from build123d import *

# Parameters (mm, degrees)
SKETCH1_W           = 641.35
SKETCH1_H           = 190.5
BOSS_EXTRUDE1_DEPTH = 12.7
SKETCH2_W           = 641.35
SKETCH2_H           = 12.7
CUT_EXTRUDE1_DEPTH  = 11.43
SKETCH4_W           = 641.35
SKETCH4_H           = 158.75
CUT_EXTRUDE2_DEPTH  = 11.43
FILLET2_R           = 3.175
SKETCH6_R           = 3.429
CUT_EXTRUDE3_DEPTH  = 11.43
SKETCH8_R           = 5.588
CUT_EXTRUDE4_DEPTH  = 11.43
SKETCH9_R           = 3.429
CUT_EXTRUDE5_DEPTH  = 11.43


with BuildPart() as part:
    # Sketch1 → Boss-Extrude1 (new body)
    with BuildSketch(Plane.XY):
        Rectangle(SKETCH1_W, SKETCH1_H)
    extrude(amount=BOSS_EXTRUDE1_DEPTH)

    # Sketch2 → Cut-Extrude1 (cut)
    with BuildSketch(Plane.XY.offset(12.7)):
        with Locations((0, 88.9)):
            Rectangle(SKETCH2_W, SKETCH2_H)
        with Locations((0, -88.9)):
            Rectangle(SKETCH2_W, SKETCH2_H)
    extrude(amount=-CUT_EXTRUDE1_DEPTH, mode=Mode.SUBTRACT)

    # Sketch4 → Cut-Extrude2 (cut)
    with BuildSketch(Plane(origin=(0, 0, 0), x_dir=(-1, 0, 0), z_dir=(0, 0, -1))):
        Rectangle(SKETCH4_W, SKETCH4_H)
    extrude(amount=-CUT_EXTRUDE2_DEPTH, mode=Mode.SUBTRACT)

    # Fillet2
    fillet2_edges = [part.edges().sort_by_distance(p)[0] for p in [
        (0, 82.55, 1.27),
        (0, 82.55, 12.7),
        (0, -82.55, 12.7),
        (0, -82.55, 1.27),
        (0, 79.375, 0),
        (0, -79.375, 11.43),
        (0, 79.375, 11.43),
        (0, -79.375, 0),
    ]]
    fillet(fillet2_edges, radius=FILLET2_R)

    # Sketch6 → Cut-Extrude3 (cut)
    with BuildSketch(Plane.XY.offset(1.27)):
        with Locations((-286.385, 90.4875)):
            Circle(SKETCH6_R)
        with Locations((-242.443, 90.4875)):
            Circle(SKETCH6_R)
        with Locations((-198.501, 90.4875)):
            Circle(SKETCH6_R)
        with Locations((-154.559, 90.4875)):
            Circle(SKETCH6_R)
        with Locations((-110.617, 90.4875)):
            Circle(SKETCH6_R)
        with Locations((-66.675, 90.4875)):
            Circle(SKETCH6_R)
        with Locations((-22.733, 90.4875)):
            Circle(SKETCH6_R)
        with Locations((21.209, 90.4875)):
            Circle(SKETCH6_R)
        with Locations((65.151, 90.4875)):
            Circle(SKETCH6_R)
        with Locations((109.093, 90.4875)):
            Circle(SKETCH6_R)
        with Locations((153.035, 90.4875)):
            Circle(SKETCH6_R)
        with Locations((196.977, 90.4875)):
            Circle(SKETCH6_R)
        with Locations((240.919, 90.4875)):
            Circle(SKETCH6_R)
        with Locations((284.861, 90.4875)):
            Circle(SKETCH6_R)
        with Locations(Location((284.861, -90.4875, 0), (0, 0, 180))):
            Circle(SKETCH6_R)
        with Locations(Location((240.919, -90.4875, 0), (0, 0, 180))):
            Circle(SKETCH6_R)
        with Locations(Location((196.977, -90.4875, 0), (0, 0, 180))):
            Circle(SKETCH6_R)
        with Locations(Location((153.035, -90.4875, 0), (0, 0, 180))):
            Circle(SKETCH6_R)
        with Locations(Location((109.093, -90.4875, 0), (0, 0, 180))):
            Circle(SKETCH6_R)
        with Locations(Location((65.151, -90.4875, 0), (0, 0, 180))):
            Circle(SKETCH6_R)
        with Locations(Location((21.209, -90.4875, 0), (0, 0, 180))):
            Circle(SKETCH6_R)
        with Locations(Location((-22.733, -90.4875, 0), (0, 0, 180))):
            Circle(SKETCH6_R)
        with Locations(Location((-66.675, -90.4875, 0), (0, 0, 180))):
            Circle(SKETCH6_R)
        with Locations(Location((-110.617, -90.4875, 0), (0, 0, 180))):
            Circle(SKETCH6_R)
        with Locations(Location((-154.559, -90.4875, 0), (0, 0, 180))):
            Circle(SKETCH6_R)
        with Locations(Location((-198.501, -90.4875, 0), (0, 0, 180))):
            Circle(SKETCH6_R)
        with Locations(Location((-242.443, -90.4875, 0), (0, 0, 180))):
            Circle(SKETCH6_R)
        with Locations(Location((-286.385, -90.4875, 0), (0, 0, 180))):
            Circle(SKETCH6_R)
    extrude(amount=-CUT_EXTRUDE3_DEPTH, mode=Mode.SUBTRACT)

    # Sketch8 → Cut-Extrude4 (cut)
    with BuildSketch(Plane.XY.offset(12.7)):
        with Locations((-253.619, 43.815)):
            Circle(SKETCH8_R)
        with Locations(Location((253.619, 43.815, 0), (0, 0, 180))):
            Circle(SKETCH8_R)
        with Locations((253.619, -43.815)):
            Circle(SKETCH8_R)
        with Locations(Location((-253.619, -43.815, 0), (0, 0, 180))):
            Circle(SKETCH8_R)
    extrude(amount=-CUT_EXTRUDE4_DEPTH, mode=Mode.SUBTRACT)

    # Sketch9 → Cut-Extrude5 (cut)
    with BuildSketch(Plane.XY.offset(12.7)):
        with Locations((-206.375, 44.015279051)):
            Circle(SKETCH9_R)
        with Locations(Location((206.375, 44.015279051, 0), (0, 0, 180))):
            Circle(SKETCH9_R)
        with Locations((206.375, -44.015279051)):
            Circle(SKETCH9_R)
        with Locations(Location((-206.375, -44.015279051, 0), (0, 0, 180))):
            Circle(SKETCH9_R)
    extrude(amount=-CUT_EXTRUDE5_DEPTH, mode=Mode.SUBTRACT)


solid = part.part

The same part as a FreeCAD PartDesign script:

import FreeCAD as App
import Part
import Sketcher
Q = App.Units.Quantity


def edges_at(feature, points):
    """Names of the edges that pass closest to the given points."""
    edges = feature.Shape.Edges
    near = lambda p: min(range(len(edges)), key=lambda i: edges[i].distToShape(Part.Vertex(*p))[0])
    return sorted({f"Edge{near(p) + 1}" for p in points})

doc = App.newDocument("Part")
body = doc.addObject("PartDesign::Body", "Body")

# Sketch on XY plane
sketch1 = doc.addObject("Sketcher::SketchObject", "Sketch")
body.addObject(sketch1)
sketch1.AttachmentSupport = (doc.XY_Plane, [""])
sketch1.MapMode = "FlatFace"
sketch1.addGeometry([
    Part.LineSegment(App.Vector(-321, 95, 0), App.Vector(-321, -95, 0)),
    Part.LineSegment(App.Vector(-321, -95, 0), App.Vector(321, -95, 0)),
    Part.LineSegment(App.Vector(321, -95, 0), App.Vector(321, 95, 0)),
    Part.LineSegment(App.Vector(321, 95, 0), App.Vector(-321, 95, 0)),
], False)
sketch1.addConstraint([
    Sketcher.Constraint("Coincident", 0, 2, 1, 1),
    Sketcher.Constraint("Coincident", 1, 2, 2, 1),
    Sketcher.Constraint("Coincident", 2, 2, 3, 1),
    Sketcher.Constraint("Coincident", 3, 2, 0, 1),
    Sketcher.Constraint("Vertical", 0),
    Sketcher.Constraint("Horizontal", 1),
    Sketcher.Constraint("Vertical", 2),
    Sketcher.Constraint("Horizontal", 3),
    Sketcher.Constraint("Symmetric", 0, 2, 2, 2, -1, 1),
    Sketcher.Constraint("DistanceY", 0, 2, 0, 1, Q("7.5 in")),
    Sketcher.Constraint("DistanceX", 1, 1, 1, 2, Q("25.25 in")),
])
pad1 = doc.addObject("PartDesign::Pad", "Pad")
body.addObject(pad1)
pad1.Profile = sketch1
pad1.Length = Q("0.5 in")

# Sketch on XY plane
sketch2 = doc.addObject("Sketcher::SketchObject", "Sketch001")
body.addObject(sketch2)
sketch2.AttachmentSupport = (doc.XY_Plane, [""])
sketch2.MapMode = "FlatFace"
sketch2.AttachmentOffset = App.Placement(App.Vector(0, 0, 0.5 * 25.4), App.Rotation())
sketch2.addGeometry([
    Part.LineSegment(App.Vector(-321, 95, 0), App.Vector(-321, 83, 0)),  # 0
    Part.LineSegment(App.Vector(-321, 83, 0), App.Vector(321, 83, 0)),  # 1
    Part.LineSegment(App.Vector(321, 83, 0), App.Vector(321, 95, 0)),  # 2
    Part.LineSegment(App.Vector(321, 95, 0), App.Vector(-321, 95, 0)),  # 3
    Part.LineSegment(App.Vector(-321, -83, 0), App.Vector(-321, -95, 0)),  # 4
    Part.LineSegment(App.Vector(-321, -95, 0), App.Vector(321, -95, 0)),  # 5
    Part.LineSegment(App.Vector(321, -95, 0), App.Vector(321, -83, 0)),  # 6
    Part.LineSegment(App.Vector(321, -83, 0), App.Vector(-321, -83, 0)),  # 7
], False)
sketch2.addConstraint([
    Sketcher.Constraint("Coincident", 0, 2, 1, 1),
    Sketcher.Constraint("Coincident", 1, 2, 2, 1),
    Sketcher.Constraint("Coincident", 2, 2, 3, 1),
    Sketcher.Constraint("Coincident", 3, 2, 0, 1),
    Sketcher.Constraint("Coincident", 4, 2, 5, 1),
    Sketcher.Constraint("Coincident", 5, 2, 6, 1),
    Sketcher.Constraint("Coincident", 6, 2, 7, 1),
    Sketcher.Constraint("Coincident", 7, 2, 4, 1),
    Sketcher.Constraint("Vertical", 0),
    Sketcher.Constraint("Horizontal", 1),
    Sketcher.Constraint("Vertical", 2),
    Sketcher.Constraint("Horizontal", 3),
    Sketcher.Constraint("Vertical", 4),
    Sketcher.Constraint("Horizontal", 5),
    Sketcher.Constraint("Vertical", 6),
    Sketcher.Constraint("Horizontal", 7),
    Sketcher.Constraint("Symmetric", 2, 2, 4, 2, -1, 1),
    Sketcher.Constraint("Symmetric", 0, 2, 6, 2, -1, 1),
    Sketcher.Constraint("Vertical", 3, 2, 4, 2),
    Sketcher.Constraint("DistanceY", 0, 2, 0, 1, Q("0.5 in")),
    Sketcher.Constraint("DistanceY", 4, 2, 0, 2, Q("7 in")),
    Sketcher.Constraint("DistanceX", 1, 1, 1, 2, Q("25.25 in")),
])
pocket1 = doc.addObject("PartDesign::Pocket", "Pocket")
body.addObject(pocket1)
pocket1.Profile = sketch2
pocket1.Length = Q("0.45 in")

# Sketch on XY plane
sketch3 = doc.addObject("Sketcher::SketchObject", "Sketch002")
body.addObject(sketch3)
sketch3.AttachmentSupport = (doc.XY_Plane, [""])
sketch3.MapMode = "FlatFace"
sketch3.addGeometry([
    Part.LineSegment(App.Vector(321, 79, 0), App.Vector(321, -79, 0)),
    Part.LineSegment(App.Vector(321, -79, 0), App.Vector(-321, -79, 0)),
    Part.LineSegment(App.Vector(-321, -79, 0), App.Vector(-321, 79, 0)),
    Part.LineSegment(App.Vector(-321, 79, 0), App.Vector(321, 79, 0)),
], False)
sketch3.addConstraint([
    Sketcher.Constraint("Coincident", 0, 2, 1, 1),
    Sketcher.Constraint("Coincident", 1, 2, 2, 1),
    Sketcher.Constraint("Coincident", 2, 2, 3, 1),
    Sketcher.Constraint("Coincident", 3, 2, 0, 1),
    Sketcher.Constraint("Vertical", 0),
    Sketcher.Constraint("Horizontal", 1),
    Sketcher.Constraint("Vertical", 2),
    Sketcher.Constraint("Horizontal", 3),
    Sketcher.Constraint("Symmetric", 0, 2, 2, 2, -1, 1),
    Sketcher.Constraint("DistanceX", 1, 2, 1, 1, Q("25.25 in")),
    Sketcher.Constraint("DistanceY", 0, 2, 0, 1, Q("6.25 in")),
])
pocket2 = doc.addObject("PartDesign::Pocket", "Pocket001")
body.addObject(pocket2)
pocket2.Profile = sketch3
pocket2.Length = Q("0.45 in")
pocket2.Reversed = True
doc.recompute()

fillet = doc.addObject("PartDesign::Fillet", "Fillet")
body.addObject(fillet)
fillet.Base = (pocket2, edges_at(pocket2, [
    (0, 82.55, 1.27),
    (0, 82.55, 12.7),
    (0, -82.55, 12.7),
    (0, -82.55, 1.27),
    (0, 79.375, 0),
    (0, -79.375, 11.43),
    (0, 79.375, 11.43),
    (0, -79.375, 0),
]))
fillet.Radius = Q("0.125 in")

# Sketch on XY plane
sketch4 = doc.addObject("Sketcher::SketchObject", "Sketch003")
body.addObject(sketch4)
sketch4.AttachmentSupport = (doc.XY_Plane, [""])
sketch4.MapMode = "FlatFace"
sketch4.AttachmentOffset = App.Placement(App.Vector(0, 0, 0.05 * 25.4), App.Rotation())
sketch4.addGeometry([
    Part.Circle(App.Vector(-286.4, 90.5, 0), App.Vector(0, 0, 1), 3.4),  # 0
    Part.Circle(App.Vector(-242.4, 90.5, 0), App.Vector(0, 0, 1), 3.4),  # 1
    Part.Circle(App.Vector(-198.5, 90.5, 0), App.Vector(0, 0, 1), 3.4),  # 2
    Part.Circle(App.Vector(-154.6, 90.5, 0), App.Vector(0, 0, 1), 3.4),  # 3
    Part.Circle(App.Vector(-110.6, 90.5, 0), App.Vector(0, 0, 1), 3.4),  # 4
    Part.Circle(App.Vector(-66.7, 90.5, 0), App.Vector(0, 0, 1), 3.4),  # 5
    Part.Circle(App.Vector(-22.7, 90.5, 0), App.Vector(0, 0, 1), 3.4),  # 6
    Part.Circle(App.Vector(21.2, 90.5, 0), App.Vector(0, 0, 1), 3.4),  # 7
    Part.Circle(App.Vector(65.2, 90.5, 0), App.Vector(0, 0, 1), 3.4),  # 8
    Part.Circle(App.Vector(109.1, 90.5, 0), App.Vector(0, 0, 1), 3.4),  # 9
    Part.Circle(App.Vector(153, 90.5, 0), App.Vector(0, 0, 1), 3.4),  # 10
    Part.Circle(App.Vector(197, 90.5, 0), App.Vector(0, 0, 1), 3.4),  # 11
    Part.Circle(App.Vector(240.9, 90.5, 0), App.Vector(0, 0, 1), 3.4),  # 12
    Part.Circle(App.Vector(284.9, 90.5, 0), App.Vector(0, 0, 1), 3.4),  # 13
    Part.Circle(App.Vector(284.9, -90.5, 0), App.Vector(0, 0, 1), 3.4),  # 14
    Part.Circle(App.Vector(240.9, -90.5, 0), App.Vector(0, 0, 1), 3.4),  # 15
    Part.Circle(App.Vector(197, -90.5, 0), App.Vector(0, 0, 1), 3.4),  # 16
    Part.Circle(App.Vector(153, -90.5, 0), App.Vector(0, 0, 1), 3.4),  # 17
    Part.Circle(App.Vector(109.1, -90.5, 0), App.Vector(0, 0, 1), 3.4),  # 18
    Part.Circle(App.Vector(65.2, -90.5, 0), App.Vector(0, 0, 1), 3.4),  # 19
    Part.Circle(App.Vector(21.2, -90.5, 0), App.Vector(0, 0, 1), 3.4),  # 20
    Part.Circle(App.Vector(-22.7, -90.5, 0), App.Vector(0, 0, 1), 3.4),  # 21
    Part.Circle(App.Vector(-66.7, -90.5, 0), App.Vector(0, 0, 1), 3.4),  # 22
    Part.Circle(App.Vector(-110.6, -90.5, 0), App.Vector(0, 0, 1), 3.4),  # 23
    Part.Circle(App.Vector(-154.6, -90.5, 0), App.Vector(0, 0, 1), 3.4),  # 24
    Part.Circle(App.Vector(-198.5, -90.5, 0), App.Vector(0, 0, 1), 3.4),  # 25
    Part.Circle(App.Vector(-242.4, -90.5, 0), App.Vector(0, 0, 1), 3.4),  # 26
    Part.Circle(App.Vector(-286.4, -90.5, 0), App.Vector(0, 0, 1), 3.4),  # 27
], False)
sketch4.addConstraint([
    Sketcher.Constraint("Equal", 0, 1),
    Sketcher.Constraint("Equal", 1, 2),
    Sketcher.Constraint("Equal", 2, 3),
    Sketcher.Constraint("Equal", 3, 4),
    Sketcher.Constraint("Equal", 4, 5),
    Sketcher.Constraint("Equal", 5, 6),
    Sketcher.Constraint("Equal", 6, 7),
    Sketcher.Constraint("Equal", 7, 8),
    Sketcher.Constraint("Equal", 8, 9),
    Sketcher.Constraint("Equal", 9, 10),
    Sketcher.Constraint("Equal", 10, 11),
    Sketcher.Constraint("Equal", 11, 12),
    Sketcher.Constraint("Equal", 12, 13),
    Sketcher.Constraint("Equal", 13, 14),
    Sketcher.Constraint("Equal", 14, 15),
    Sketcher.Constraint("Equal", 15, 16),
    Sketcher.Constraint("Equal", 16, 17),
    Sketcher.Constraint("Equal", 17, 18),
    Sketcher.Constraint("Equal", 18, 19),
    Sketcher.Constraint("Equal", 19, 20),
    Sketcher.Constraint("Equal", 20, 21),
    Sketcher.Constraint("Equal", 21, 22),
    Sketcher.Constraint("Equal", 22, 23),
    Sketcher.Constraint("Equal", 23, 24),
    Sketcher.Constraint("Equal", 24, 25),
    Sketcher.Constraint("Equal", 25, 26),
    Sketcher.Constraint("Equal", 26, 27),
    Sketcher.Constraint("Symmetric", 13, 3, 14, 3, -1),
    Sketcher.Constraint("Symmetric", 12, 3, 15, 3, -1),
    Sketcher.Constraint("Symmetric", 11, 3, 16, 3, -1),
    Sketcher.Constraint("Symmetric", 10, 3, 17, 3, -1),
    Sketcher.Constraint("Symmetric", 9, 3, 18, 3, -1),
    Sketcher.Constraint("Symmetric", 8, 3, 19, 3, -1),
    Sketcher.Constraint("Symmetric", 7, 3, 20, 3, -1),
    Sketcher.Constraint("Symmetric", 6, 3, 21, 3, -1),
    Sketcher.Constraint("Symmetric", 5, 3, 22, 3, -1),
    Sketcher.Constraint("Symmetric", 4, 3, 23, 3, -1),
    Sketcher.Constraint("Symmetric", 3, 3, 24, 3, -1),
    Sketcher.Constraint("Symmetric", 2, 3, 25, 3, -1),
    Sketcher.Constraint("Symmetric", 1, 3, 26, 3, -1),
    Sketcher.Constraint("Symmetric", 0, 3, 27, 3, -1),
    Sketcher.Constraint("Horizontal", 0, 3, 1, 3),
    Sketcher.Constraint("Horizontal", 1, 3, 2, 3),
    Sketcher.Constraint("Horizontal", 2, 3, 3, 3),
    Sketcher.Constraint("Horizontal", 3, 3, 4, 3),
    Sketcher.Constraint("Horizontal", 4, 3, 5, 3),
    Sketcher.Constraint("Horizontal", 5, 3, 6, 3),
    Sketcher.Constraint("Horizontal", 6, 3, 7, 3),
    Sketcher.Constraint("Horizontal", 7, 3, 8, 3),
    Sketcher.Constraint("Horizontal", 8, 3, 9, 3),
    Sketcher.Constraint("Horizontal", 9, 3, 10, 3),
    Sketcher.Constraint("Horizontal", 10, 3, 11, 3),
    Sketcher.Constraint("Horizontal", 11, 3, 12, 3),
    Sketcher.Constraint("Horizontal", 12, 3, 13, 3),
    Sketcher.Constraint("Diameter", 0, Q("0.27 in")),
    Sketcher.Constraint("DistanceX", 0, 3, 1, 3, Q("1.73 in")),
    Sketcher.Constraint("DistanceX", 1, 3, 2, 3, Q("1.73 in")),
    Sketcher.Constraint("DistanceX", 2, 3, 3, 3, Q("1.73 in")),
    Sketcher.Constraint("DistanceX", 3, 3, 4, 3, Q("1.73 in")),
    Sketcher.Constraint("DistanceX", 4, 3, 5, 3, Q("1.73 in")),
    Sketcher.Constraint("DistanceX", 5, 3, 6, 3, Q("1.73 in")),
    Sketcher.Constraint("DistanceX", 6, 3, 7, 3, Q("1.73 in")),
    Sketcher.Constraint("DistanceX", 7, 3, 8, 3, Q("1.73 in")),
    Sketcher.Constraint("DistanceX", 8, 3, 9, 3, Q("1.73 in")),
    Sketcher.Constraint("DistanceX", 9, 3, 10, 3, Q("1.73 in")),
    Sketcher.Constraint("DistanceX", 10, 3, 11, 3, Q("1.73 in")),
    Sketcher.Constraint("DistanceX", 11, 3, 12, 3, Q("1.73 in")),
    Sketcher.Constraint("DistanceX", 12, 3, 13, 3, Q("1.73 in")),
    Sketcher.Constraint("DistanceX", 0, 3, -1, 1, Q("11.275 in")),
    Sketcher.Constraint("DistanceY", -1, 1, 0, 3, Q("3.5625 in")),
])
pocket3 = doc.addObject("PartDesign::Pocket", "Pocket002")
body.addObject(pocket3)
pocket3.Profile = sketch4
pocket3.Length = Q("0.45 in")

# Sketch on XY plane
sketch5 = doc.addObject("Sketcher::SketchObject", "Sketch004")
body.addObject(sketch5)
sketch5.AttachmentSupport = (doc.XY_Plane, [""])
sketch5.MapMode = "FlatFace"
sketch5.AttachmentOffset = App.Placement(App.Vector(0, 0, 0.5 * 25.4), App.Rotation())
sketch5.addGeometry([
    Part.Circle(App.Vector(-254, 44, 0), App.Vector(0, 0, 1), 6),
    Part.Circle(App.Vector(254, 44, 0), App.Vector(0, 0, 1), 6),
    Part.Circle(App.Vector(254, -44, 0), App.Vector(0, 0, 1), 6),
    Part.Circle(App.Vector(-254, -44, 0), App.Vector(0, 0, 1), 6),
], False)
sketch5.addConstraint([
    Sketcher.Constraint("Equal", 0, 1),
    Sketcher.Constraint("Equal", 1, 2),
    Sketcher.Constraint("Equal", 2, 3),
    Sketcher.Constraint("Symmetric", 0, 3, 2, 3, -1, 1),
    Sketcher.Constraint("Symmetric", 1, 3, 3, 3, -1, 1),
    Sketcher.Constraint("Symmetric", 0, 3, 1, 3, -2),
    Sketcher.Constraint("Diameter", 0, Q("0.44 in")),
    Sketcher.Constraint("DistanceX", 0, 3, 1, 3, Q("19.97 in")),
    Sketcher.Constraint("DistanceY", 2, 3, 1, 3, Q("3.45 in")),
])
pocket4 = doc.addObject("PartDesign::Pocket", "Pocket003")
body.addObject(pocket4)
pocket4.Profile = sketch5
pocket4.Length = Q("0.45 in")

# Sketch on XY plane
sketch6 = doc.addObject("Sketcher::SketchObject", "Sketch005")
body.addObject(sketch6)
sketch6.AttachmentSupport = (doc.XY_Plane, [""])
sketch6.MapMode = "FlatFace"
sketch6.AttachmentOffset = App.Placement(App.Vector(0, 0, 0.5 * 25.4), App.Rotation())
sketch6.addGeometry([
    Part.Circle(App.Vector(-206.4, 44, 0), App.Vector(0, 0, 1), 3.4),
    Part.Circle(App.Vector(206.4, 44, 0), App.Vector(0, 0, 1), 3.4),
    Part.Circle(App.Vector(206.4, -44, 0), App.Vector(0, 0, 1), 3.4),
    Part.Circle(App.Vector(-206.4, -44, 0), App.Vector(0, 0, 1), 3.4),
], False)
sketch6.addConstraint([
    Sketcher.Constraint("Equal", 0, 1),
    Sketcher.Constraint("Equal", 1, 2),
    Sketcher.Constraint("Equal", 2, 3),
    Sketcher.Constraint("Symmetric", 0, 3, 2, 3, -1, 1),
    Sketcher.Constraint("Symmetric", 1, 3, 3, 3, -1, 1),
    Sketcher.Constraint("Symmetric", 0, 3, 1, 3, -2),
    Sketcher.Constraint("Diameter", 0, Q("0.27 in")),
    Sketcher.Constraint("DistanceX", 0, 3, 1, 3, Q("16.25 in")),
    Sketcher.Constraint("DistanceY", -1, 1, 0, 3, Q("44.015279 mm")),
])
pocket5 = doc.addObject("PartDesign::Pocket", "Pocket004")
body.addObject(pocket5)
pocket5.Profile = sketch6
pocket5.Length = Q("0.45 in")

doc.recompute()
